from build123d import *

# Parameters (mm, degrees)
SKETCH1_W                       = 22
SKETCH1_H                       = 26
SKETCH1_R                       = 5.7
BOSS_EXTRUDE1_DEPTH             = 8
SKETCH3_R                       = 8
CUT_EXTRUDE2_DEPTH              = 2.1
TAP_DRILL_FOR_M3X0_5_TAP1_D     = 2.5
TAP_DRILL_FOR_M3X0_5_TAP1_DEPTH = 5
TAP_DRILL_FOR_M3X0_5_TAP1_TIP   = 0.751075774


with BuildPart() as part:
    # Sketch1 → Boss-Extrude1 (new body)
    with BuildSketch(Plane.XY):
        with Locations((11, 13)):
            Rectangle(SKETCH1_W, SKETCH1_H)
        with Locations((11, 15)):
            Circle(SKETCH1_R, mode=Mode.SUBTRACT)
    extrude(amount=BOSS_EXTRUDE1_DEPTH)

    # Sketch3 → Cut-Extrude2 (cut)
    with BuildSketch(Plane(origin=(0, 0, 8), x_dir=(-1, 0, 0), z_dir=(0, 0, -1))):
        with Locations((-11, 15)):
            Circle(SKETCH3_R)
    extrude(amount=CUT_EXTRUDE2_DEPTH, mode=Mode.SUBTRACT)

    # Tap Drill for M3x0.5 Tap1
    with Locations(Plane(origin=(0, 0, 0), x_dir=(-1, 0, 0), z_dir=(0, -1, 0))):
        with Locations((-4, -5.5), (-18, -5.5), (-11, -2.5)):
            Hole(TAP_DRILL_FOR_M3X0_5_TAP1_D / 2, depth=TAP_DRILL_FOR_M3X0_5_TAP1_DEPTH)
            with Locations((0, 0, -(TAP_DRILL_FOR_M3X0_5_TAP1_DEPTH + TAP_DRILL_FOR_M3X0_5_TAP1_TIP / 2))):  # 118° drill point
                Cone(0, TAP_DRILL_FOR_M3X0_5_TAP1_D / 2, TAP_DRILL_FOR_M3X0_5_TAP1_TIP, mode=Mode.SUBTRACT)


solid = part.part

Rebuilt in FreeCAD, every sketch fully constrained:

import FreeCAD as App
import Part
import Sketcher
from FreeCAD import Vector

doc = App.newDocument("Part")
body = doc.addObject("PartDesign::Body", "Body")

# Sketch on XY plane
sketch1 = doc.addObject("Sketcher::SketchObject", "Sketch")
body.addObject(sketch1)
sketch1.AttachmentSupport = (doc.XY_Plane, [""])
sketch1.MapMode = "FlatFace"
sketch1.addGeometry(Part.LineSegment(Vector(0, 26, 0), Vector(0, 0, 0)), False)
sketch1.addGeometry(Part.LineSegment(Vector(0, 0, 0), Vector(22, 0, 0)), False)
sketch1.addGeometry(Part.LineSegment(Vector(22, 0, 0), Vector(22, 26, 0)), False)
sketch1.addGeometry(Part.LineSegment(Vector(22, 26, 0), Vector(0, 26, 0)), False)
sketch1.addGeometry(Part.Circle(Vector(11, 15, 0), Vector(0, 0, 1), 6), False)
sketch1.addConstraint(Sketcher.Constraint("Coincident", 0, 2, 1, 1))
sketch1.addConstraint(Sketcher.Constraint("Coincident", 1, 2, 2, 1))
sketch1.addConstraint(Sketcher.Constraint("Coincident", 2, 2, 3, 1))
sketch1.addConstraint(Sketcher.Constraint("Coincident", 3, 2, 0, 1))
sketch1.addConstraint(Sketcher.Constraint("Vertical", 0))
sketch1.addConstraint(Sketcher.Constraint("Horizontal", 1))
sketch1.addConstraint(Sketcher.Constraint("Vertical", 2))
sketch1.addConstraint(Sketcher.Constraint("Horizontal", 3))
sketch1.addConstraint(Sketcher.Constraint("Coincident", 0, 2, -1, 1))
sketch1.addConstraint(Sketcher.Constraint("Diameter", 4, 11.4))
sketch1.addConstraint(Sketcher.Constraint("DistanceX", 1, 1, 1, 2, 22.0))
sketch1.addConstraint(Sketcher.Constraint("DistanceY", 0, 2, 0, 1, 26.0))
sketch1.addConstraint(Sketcher.Constraint("DistanceX", -1, 1, 4, 3, 11.0))
sketch1.addConstraint(Sketcher.Constraint("DistanceY", -1, 1, 4, 3, 15.0))
pad1 = doc.addObject("PartDesign::Pad", "Pad")
body.addObject(pad1)
pad1.Profile = sketch1
pad1.Length = 8

# Sketch on XY plane
sketch2 = doc.addObject("Sketcher::SketchObject", "Sketch001")
body.addObject(sketch2)
sketch2.AttachmentSupport = (doc.XY_Plane, [""])
sketch2.MapMode = "FlatFace"
sketch2.AttachmentOffset = App.Placement(Vector(0, 0, 8), App.Rotation())
sketch2.addGeometry(Part.Circle(Vector(11, 15, 0), Vector(0, 0, 1), 8), False)
sketch2.addConstraint(Sketcher.Constraint("Diameter", 0, 16.0))
sketch2.addConstraint(Sketcher.Constraint("DistanceX", -1, 1, 0, 3, 11.0))
sketch2.addConstraint(Sketcher.Constraint("DistanceY", -1, 1, 0, 3, 15.0))
pocket1 = doc.addObject("PartDesign::Pocket", "Pocket")
body.addObject(pocket1)
pocket1.Profile = sketch2
pocket1.Length = 2.1

# Sketch on XZ plane
sketch3 = doc.addObject("Sketcher::SketchObject", "Sketch002")
body.addObject(sketch3)
sketch3.AttachmentSupport = (doc.XZ_Plane, [""])
sketch3.MapMode = "FlatFace"
sketch3.addGeometry(Part.Circle(Vector(4, 5.5, 0), Vector(0, 0, 1), 1.2), False)
sketch3.addGeometry(Part.Circle(Vector(18, 5.5, 0), Vector(0, 0, 1), 1.2), False)
sketch3.addGeometry(Part.Circle(Vector(11, 2.5, 0), Vector(0, 0, 1), 1.2), False)
sketch3.addConstraint(Sketcher.Constraint("Equal", 0, 1))
sketch3.addConstraint(Sketcher.Constraint("Equal", 1, 2))
sketch3.addConstraint(Sketcher.Constraint("Horizontal", 0, 3, 1, 3))
sketch3.addConstraint(Sketcher.Constraint("Diameter", 0, 2.5))
sketch3.addConstraint(Sketcher.Constraint("DistanceX", -1, 1, 0, 3, 4.0))
sketch3.addConstraint(Sketcher.Constraint("DistanceX", -1, 1, 1, 3, 18.0))
sketch3.addConstraint(Sketcher.Constraint("DistanceX", -1, 1, 2, 3, 11.0))
sketch3.addConstraint(Sketcher.Constraint("DistanceY", 2, 3, 0, 3, 3.0))
sketch3.addConstraint(Sketcher.Constraint("DistanceY", -1, 1, 0, 3, 5.5))
doc.recompute()
hole = doc.addObject("PartDesign::Hole", "Hole")
body.addObject(hole)
hole.Profile = sketch3
hole.ThreadType = "None"
hole.Diameter = 2.5
hole.DepthType = "Dimension"
hole.Depth = 5
hole.DrillPoint = "Angled"
hole.DrillPointAngle = 118

doc.recompute()
